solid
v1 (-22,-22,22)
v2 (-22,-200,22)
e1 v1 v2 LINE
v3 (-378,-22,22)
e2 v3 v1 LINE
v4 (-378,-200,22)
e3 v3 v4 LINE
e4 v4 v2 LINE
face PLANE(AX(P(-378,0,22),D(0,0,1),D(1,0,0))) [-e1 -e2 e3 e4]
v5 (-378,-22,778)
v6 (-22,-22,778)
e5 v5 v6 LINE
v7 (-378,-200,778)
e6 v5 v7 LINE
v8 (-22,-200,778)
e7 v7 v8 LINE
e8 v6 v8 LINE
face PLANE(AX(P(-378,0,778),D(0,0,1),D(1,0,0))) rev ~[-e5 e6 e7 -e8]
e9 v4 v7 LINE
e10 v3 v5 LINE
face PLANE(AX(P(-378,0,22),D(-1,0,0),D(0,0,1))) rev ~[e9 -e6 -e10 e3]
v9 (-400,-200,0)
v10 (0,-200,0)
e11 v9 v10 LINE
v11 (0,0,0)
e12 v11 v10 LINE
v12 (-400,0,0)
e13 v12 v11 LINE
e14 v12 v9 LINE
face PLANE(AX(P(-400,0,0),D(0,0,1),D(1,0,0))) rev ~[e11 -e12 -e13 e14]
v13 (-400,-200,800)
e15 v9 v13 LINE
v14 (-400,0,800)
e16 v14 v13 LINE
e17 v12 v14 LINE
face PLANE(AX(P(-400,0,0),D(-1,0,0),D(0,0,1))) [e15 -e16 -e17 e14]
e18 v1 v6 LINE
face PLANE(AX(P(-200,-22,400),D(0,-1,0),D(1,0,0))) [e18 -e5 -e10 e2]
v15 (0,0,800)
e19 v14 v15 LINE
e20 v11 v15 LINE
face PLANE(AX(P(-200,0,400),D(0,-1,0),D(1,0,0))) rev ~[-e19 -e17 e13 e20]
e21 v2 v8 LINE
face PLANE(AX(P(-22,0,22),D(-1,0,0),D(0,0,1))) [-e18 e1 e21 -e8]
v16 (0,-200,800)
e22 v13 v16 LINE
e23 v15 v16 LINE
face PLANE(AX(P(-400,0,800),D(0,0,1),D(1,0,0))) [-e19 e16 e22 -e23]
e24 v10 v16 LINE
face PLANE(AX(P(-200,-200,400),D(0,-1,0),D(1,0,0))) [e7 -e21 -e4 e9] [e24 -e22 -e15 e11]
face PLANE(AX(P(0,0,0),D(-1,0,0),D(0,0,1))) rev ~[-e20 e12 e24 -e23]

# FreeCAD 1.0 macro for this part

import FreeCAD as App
import Part
import Sketcher
Q = App.Units.Quantity

doc = App.newDocument("Part")
body = doc.addObject("PartDesign::Body", "Body")

sketch1 = doc.addObject("Sketcher::SketchObject", "Sketch")
body.addObject(sketch1)
sketch1.AttachmentSupport = (doc.XZ_Plane, [""])
sketch1.MapMode = "FlatFace"
sketch1.addGeometry(Part.LineSegment(App.Vector(-378, 778, 0), App.Vector(-378, 22, 0)), False)
sketch1.addGeometry(Part.LineSegment(App.Vector(-378, 22, 0), App.Vector(-22, 22, 0)), False)
sketch1.addGeometry(Part.LineSegment(App.Vector(-22, 22, 0), App.Vector(-22, 778, 0)), False)
sketch1.addGeometry(Part.LineSegment(App.Vector(-22, 778, 0), App.Vector(-378, 778, 0)), False)
sketch1.addConstraint(Sketcher.Constraint("Coincident", 0, 2, 1, 1))
sketch1.addConstraint(Sketcher.Constraint("Coincident", 1, 2, 2, 1))
sketch1.addConstraint(Sketcher.Constraint("Coincident", 2, 2, 3, 1))
sketch1.addConstraint(Sketcher.Constraint("Coincident", 3, 2, 0, 1))
sketch1.addConstraint(Sketcher.Constraint("Vertical", 0))
sketch1.addConstraint(Sketcher.Constraint("Horizontal", 1))
sketch1.addConstraint(Sketcher.Constraint("Vertical", 2))
sketch1.addConstraint(Sketcher.Constraint("Horizontal", 3))
sketch1.addConstraint(Sketcher.Constraint("DistanceX", 1, 1, 1, 2, Q("356 mm")))
sketch1.addConstraint(Sketcher.Constraint("DistanceY", 0, 2, 0, 1, Q("756 mm")))
sketch1.addConstraint(Sketcher.Constraint("DistanceX", 0, 2, -1, 1, Q("378 mm")))
sketch1.addConstraint(Sketcher.Constraint("DistanceY", -1, 1, 0, 2, Q("22 mm")))
pad1 = doc.addObject("PartDesign::Pad", "Pad")
body.addObject(pad1)
pad1.Profile = sketch1
pad1.Length = 22

sketch2 = doc.addObject("Sketcher::SketchObject", "Sketch001")
body.addObject(sketch2)
sketch2.AttachmentSupport = (doc.XZ_Plane, [""])
sketch2.MapMode = "FlatFace"
sketch2.addGeometry(Part.LineSegment(App.Vector(-400, 800, 0), App.Vector(-400, 0, 0)), False)
sketch2.addGeometry(Part.LineSegment(App.Vector(-400, 0, 0), App.Vector(0, 0, 0)), False)
sketch2.addGeometry(Part.LineSegment(App.Vector(0, 0, 0), App.Vector(0, 800, 0)), False)
sketch2.addGeometry(Part.LineSegment(App.Vector(0, 800, 0), App.Vector(-400, 800, 0)), False)
sketch2.addGeometry(Part.LineSegment(App.Vector(-22, 22, 0), App.Vector(-378, 22, 0)), False)
sketch2.addGeometry(Part.LineSegment(App.Vector(-378, 22, 0), App.Vector(-378, 778, 0)), False)
sketch2.addGeometry(Part.LineSegment(App.Vector(-378, 778, 0), App.Vector(-22, 778, 0)), False)
sketch2.addGeometry(Part.LineSegment(App.Vector(-22, 778, 0), App.Vector(-22, 22, 0)), False)
sketch2.addConstraint(Sketcher.Constraint("Coincident", 0, 2, 1, 1))
sketch2.addConstraint(Sketcher.Constraint("Coincident", 1, 2, 2, 1))
sketch2.addConstraint(Sketcher.Constraint("Coincident", 2, 2, 3, 1))
sketch2.addConstraint(Sketcher.Constraint("Coincident", 3, 2, 0, 1))
sketch2.addConstraint(Sketcher.Constraint("Coincident", 4, 2, 5, 1))
sketch2.addConstraint(Sketcher.Constraint("Coincident", 5, 2, 6, 1))
sketch2.addConstraint(Sketcher.Constraint("Coincident", 6, 2, 7, 1))
sketch2.addConstraint(Sketcher.Constraint("Coincident", 7, 2, 4, 1))
sketch2.addConstraint(Sketcher.Constraint("Vertical", 0))
sketch2.addConstraint(Sketcher.Constraint("Horizontal", 1))
sketch2.addConstraint(Sketcher.Constraint("Vertical", 2))
sketch2.addConstraint(Sketcher.Constraint("Horizontal", 3))
sketch2.addConstraint(Sketcher.Constraint("Horizontal", 4))
sketch2.addConstraint(Sketcher.Constraint("Vertical", 5))
sketch2.addConstraint(Sketcher.Constraint("Horizontal", 6))
sketch2.addConstraint(Sketcher.Constraint("Vertical", 7))
sketch2.addConstraint(Sketcher.Constraint("Coincident", 1, 2, -1, 1))
sketch2.addConstraint(Sketcher.Constraint("DistanceX", 1, 1, 1, 2, Q("400 mm")))
sketch2.addConstraint(Sketcher.Constraint("DistanceX", 4, 2, 4, 1, Q("356 mm")))
sketch2.addConstraint(Sketcher.Constraint("DistanceY", 0, 2, 0, 1, Q("800 mm")))
sketch2.addConstraint(Sketcher.Constraint("DistanceY", 5, 1, 5, 2, Q("756 mm")))
sketch2.addConstraint(Sketcher.Constraint("DistanceX", 4, 2, -1, 1, Q("378 mm")))
sketch2.addConstraint(Sketcher.Constraint("DistanceY", -1, 1, 4, 2, Q("22 mm")))
pad2 = doc.addObject("PartDesign::Pad", "Pad001")
body.addObject(pad2)
pad2.Profile = sketch2
pad2.Length = 200

doc.recompute()
